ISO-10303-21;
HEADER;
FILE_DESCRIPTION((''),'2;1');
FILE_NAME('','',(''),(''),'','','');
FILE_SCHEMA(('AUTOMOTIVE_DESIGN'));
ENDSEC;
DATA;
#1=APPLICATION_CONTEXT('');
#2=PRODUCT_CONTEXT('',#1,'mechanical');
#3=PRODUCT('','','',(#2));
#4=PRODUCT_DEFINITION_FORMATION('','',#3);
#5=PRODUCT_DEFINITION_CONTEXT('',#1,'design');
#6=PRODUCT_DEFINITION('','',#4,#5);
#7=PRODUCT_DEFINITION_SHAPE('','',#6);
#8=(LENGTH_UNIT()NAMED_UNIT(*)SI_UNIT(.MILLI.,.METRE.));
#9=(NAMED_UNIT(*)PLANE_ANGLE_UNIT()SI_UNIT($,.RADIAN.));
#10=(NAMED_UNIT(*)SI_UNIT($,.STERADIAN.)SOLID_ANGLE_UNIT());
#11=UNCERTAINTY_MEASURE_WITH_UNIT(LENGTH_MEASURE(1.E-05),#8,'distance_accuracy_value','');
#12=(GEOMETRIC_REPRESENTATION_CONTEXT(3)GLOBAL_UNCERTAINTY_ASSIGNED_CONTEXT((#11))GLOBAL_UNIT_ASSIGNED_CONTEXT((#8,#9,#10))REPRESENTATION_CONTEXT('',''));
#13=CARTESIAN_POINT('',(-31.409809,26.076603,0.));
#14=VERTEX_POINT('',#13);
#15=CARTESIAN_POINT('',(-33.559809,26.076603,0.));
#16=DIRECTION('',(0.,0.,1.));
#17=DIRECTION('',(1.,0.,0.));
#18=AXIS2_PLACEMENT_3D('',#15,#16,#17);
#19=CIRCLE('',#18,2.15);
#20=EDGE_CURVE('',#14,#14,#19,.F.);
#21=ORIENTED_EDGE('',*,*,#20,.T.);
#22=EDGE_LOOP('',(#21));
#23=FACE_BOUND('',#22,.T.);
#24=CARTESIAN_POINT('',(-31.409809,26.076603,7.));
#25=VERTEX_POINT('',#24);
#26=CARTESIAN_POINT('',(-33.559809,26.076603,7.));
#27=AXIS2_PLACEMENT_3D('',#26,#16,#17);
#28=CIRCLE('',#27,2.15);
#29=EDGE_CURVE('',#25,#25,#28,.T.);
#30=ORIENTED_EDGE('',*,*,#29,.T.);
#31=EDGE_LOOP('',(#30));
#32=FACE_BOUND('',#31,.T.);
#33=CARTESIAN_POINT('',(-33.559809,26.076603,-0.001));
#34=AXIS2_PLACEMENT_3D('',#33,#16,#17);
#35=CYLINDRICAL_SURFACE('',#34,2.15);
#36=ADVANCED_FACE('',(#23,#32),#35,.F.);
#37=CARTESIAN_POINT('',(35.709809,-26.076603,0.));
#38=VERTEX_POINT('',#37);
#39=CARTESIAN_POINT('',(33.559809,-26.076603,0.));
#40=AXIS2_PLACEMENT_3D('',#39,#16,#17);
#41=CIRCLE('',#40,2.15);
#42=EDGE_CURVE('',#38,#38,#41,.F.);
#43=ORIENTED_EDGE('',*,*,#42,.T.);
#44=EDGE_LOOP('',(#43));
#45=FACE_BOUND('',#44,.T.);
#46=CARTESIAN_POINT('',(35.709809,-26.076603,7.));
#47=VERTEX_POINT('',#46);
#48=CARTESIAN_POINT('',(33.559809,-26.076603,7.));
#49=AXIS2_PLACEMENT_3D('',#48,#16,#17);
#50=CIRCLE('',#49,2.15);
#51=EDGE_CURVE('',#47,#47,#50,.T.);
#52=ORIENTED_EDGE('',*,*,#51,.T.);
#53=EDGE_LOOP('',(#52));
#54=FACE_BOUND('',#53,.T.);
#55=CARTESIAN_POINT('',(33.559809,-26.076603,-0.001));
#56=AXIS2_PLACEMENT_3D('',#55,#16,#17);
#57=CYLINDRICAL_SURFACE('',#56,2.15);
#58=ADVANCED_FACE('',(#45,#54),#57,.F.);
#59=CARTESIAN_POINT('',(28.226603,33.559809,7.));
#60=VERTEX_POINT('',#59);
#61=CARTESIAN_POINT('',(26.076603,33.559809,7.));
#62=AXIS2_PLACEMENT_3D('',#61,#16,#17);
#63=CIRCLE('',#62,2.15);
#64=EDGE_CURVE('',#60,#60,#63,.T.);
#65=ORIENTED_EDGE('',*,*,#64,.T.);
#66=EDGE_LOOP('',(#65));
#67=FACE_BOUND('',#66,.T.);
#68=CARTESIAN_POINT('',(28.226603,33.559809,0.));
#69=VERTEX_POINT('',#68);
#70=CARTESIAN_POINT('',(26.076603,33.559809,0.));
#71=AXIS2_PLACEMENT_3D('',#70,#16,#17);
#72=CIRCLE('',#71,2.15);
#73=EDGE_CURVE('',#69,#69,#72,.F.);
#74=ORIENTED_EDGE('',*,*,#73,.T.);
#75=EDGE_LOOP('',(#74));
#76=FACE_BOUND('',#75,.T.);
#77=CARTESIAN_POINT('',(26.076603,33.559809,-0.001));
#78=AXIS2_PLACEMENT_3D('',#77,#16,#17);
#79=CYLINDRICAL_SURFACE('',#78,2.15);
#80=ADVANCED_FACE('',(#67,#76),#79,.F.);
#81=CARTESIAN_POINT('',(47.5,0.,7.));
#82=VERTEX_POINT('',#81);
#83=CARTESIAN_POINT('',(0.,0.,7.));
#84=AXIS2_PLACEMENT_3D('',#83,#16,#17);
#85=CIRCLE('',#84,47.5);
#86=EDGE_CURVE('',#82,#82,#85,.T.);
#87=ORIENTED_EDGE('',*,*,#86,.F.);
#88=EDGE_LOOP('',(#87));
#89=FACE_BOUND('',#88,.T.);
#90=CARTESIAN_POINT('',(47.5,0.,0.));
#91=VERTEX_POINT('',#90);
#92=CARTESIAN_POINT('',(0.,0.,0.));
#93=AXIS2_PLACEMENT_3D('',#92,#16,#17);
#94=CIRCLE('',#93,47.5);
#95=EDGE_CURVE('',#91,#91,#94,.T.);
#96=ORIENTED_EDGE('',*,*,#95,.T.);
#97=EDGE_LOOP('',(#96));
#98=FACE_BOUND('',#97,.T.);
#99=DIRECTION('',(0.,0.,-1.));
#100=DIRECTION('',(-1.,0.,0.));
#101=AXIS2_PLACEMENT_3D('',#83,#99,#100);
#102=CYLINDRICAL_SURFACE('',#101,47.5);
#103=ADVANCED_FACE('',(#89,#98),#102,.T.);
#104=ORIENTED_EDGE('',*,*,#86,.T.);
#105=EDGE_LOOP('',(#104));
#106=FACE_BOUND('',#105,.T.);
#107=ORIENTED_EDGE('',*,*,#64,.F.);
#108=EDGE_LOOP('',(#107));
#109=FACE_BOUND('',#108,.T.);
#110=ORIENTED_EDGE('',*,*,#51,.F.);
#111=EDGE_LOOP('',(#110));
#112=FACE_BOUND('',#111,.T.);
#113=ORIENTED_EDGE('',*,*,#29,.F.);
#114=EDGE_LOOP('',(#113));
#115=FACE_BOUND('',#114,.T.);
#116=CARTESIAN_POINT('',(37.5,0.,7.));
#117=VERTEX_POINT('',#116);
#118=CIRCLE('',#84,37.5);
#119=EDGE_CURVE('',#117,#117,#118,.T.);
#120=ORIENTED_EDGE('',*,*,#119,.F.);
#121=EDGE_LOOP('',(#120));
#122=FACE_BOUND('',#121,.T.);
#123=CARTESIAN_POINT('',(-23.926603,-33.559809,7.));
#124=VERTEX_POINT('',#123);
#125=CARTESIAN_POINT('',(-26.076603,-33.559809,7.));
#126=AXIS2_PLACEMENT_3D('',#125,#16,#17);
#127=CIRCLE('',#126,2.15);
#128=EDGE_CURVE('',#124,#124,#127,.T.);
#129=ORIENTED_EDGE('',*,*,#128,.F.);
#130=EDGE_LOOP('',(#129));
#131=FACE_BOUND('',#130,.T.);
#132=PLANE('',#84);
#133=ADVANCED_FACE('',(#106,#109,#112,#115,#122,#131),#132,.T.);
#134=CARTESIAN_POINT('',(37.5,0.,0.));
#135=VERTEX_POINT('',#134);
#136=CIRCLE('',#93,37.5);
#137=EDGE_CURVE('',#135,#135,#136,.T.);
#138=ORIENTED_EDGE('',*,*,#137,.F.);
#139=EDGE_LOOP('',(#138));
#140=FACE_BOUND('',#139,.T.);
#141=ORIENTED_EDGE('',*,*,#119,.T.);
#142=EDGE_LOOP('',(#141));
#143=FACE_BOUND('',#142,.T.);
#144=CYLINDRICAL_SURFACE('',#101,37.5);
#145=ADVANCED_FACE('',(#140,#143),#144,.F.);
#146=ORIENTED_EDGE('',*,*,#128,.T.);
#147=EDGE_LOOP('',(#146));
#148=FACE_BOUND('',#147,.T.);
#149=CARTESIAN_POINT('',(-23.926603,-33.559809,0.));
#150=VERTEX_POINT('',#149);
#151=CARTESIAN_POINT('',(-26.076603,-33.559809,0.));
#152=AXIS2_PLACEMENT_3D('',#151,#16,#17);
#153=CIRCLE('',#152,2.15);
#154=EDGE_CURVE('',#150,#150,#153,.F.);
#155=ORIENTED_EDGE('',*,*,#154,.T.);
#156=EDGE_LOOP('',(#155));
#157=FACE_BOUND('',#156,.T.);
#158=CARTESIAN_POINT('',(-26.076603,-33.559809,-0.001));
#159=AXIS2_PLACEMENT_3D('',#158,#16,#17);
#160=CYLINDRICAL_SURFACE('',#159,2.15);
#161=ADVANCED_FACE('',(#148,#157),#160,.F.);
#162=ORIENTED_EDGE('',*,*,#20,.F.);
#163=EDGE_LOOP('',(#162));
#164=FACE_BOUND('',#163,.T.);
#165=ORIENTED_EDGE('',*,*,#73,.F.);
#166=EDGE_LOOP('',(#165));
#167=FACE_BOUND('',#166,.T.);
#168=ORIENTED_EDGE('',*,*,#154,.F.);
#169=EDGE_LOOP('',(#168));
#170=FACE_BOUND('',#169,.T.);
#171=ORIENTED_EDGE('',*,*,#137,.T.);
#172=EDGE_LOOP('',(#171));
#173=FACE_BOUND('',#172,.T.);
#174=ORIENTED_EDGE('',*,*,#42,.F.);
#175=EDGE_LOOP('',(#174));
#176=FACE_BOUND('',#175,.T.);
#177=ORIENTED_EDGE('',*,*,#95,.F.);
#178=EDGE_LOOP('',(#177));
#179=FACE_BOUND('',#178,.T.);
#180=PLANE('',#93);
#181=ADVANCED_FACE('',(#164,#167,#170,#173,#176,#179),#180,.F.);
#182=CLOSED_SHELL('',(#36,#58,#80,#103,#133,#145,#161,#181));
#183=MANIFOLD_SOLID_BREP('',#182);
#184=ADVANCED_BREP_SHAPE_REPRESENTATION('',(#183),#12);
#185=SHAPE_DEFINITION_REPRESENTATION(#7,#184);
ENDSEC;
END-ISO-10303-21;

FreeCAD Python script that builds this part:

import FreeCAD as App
import Part
import Sketcher

doc = App.newDocument("Part")
body = doc.addObject("PartDesign::Body", "Body")

sketch1 = doc.addObject("Sketcher::SketchObject", "Sketch")
body.addObject(sketch1)
sketch1.AttachmentSupport = (doc.XY_Plane, [""])
sketch1.MapMode = "FlatFace"
sketch1.addGeometry([
    Part.Circle(App.Vector(0, 0, 0), App.Vector(0, 0, 1), 48),
    Part.Circle(App.Vector(0, 0, 0), App.Vector(0, 0, 1), 38),
], False)
sketch1.addConstraint([
    Sketcher.Constraint("Coincident", 0, 3, -1, 1),
    Sketcher.Constraint("Coincident", 1, 3, -1, 1),
    Sketcher.Constraint("Diameter", 0, 95.0),
    Sketcher.Constraint("Diameter", 1, 75.0),
])
pad1 = doc.addObject("PartDesign::Pad", "Pad")
body.addObject(pad1)
pad1.Profile = sketch1
pad1.Length = 7

sketch2 = doc.addObject("Sketcher::SketchObject", "Sketch001")
body.addObject(sketch2)
sketch2.AttachmentSupport = (doc.XY_Plane, [""])
sketch2.MapMode = "FlatFace"
sketch2.AttachmentOffset = App.Placement(App.Vector(0, 0, 7), App.Rotation())
sketch2.addGeometry(Part.Circle(App.Vector(-33.6, 26.1, 0), App.Vector(0, 0, 1), 2.1), False)
sketch2.addConstraint([
    Sketcher.Constraint("Diameter", 0, 4.3),
    Sketcher.Constraint("DistanceX", 0, 3, -1, 1, 33.559809),
    Sketcher.Constraint("DistanceY", -1, 1, 0, 3, 26.076603),
])
pocket1 = doc.addObject("PartDesign::Pocket", "Pocket")
body.addObject(pocket1)
pocket1.Profile = sketch2
pocket1.Type = "UpToFirst"

sketch3 = doc.addObject("Sketcher::SketchObject", "Sketch002")
body.addObject(sketch3)
sketch3.AttachmentSupport = (doc.XY_Plane, [""])
sketch3.MapMode = "FlatFace"
sketch3.AttachmentOffset = App.Placement(App.Vector(0, 0, 7), App.Rotation())
sketch3.addGeometry(Part.Circle(App.Vector(26.1, 33.6, 0), App.Vector(0, 0, 1), 2.1), False)
sketch3.addConstraint([
    Sketcher.Constraint("Diameter", 0, 4.3),
    Sketcher.Constraint("DistanceY", -1, 1, 0, 3, 33.559809),
    Sketcher.Constraint("DistanceX", -1, 1, 0, 3, 26.076603),
])
pocket2 = doc.addObject("PartDesign::Pocket", "Pocket001")
body.addObject(pocket2)
pocket2.Profile = sketch3
pocket2.Type = "UpToFirst"

sketch4 = doc.addObject("Sketcher::SketchObject", "Sketch003")
body.addObject(sketch4)
sketch4.AttachmentSupport = (doc.XY_Plane, [""])
sketch4.MapMode = "FlatFace"
sketch4.AttachmentOffset = App.Placement(App.Vector(0, 0, 7), App.Rotation())
sketch4.addGeometry(Part.Circle(App.Vector(33.6, -26.1, 0), App.Vector(0, 0, 1), 2.1), False)
sketch4.addConstraint([
    Sketcher.Constraint("Diameter", 0, 4.3),
    Sketcher.Constraint("DistanceX", -1, 1, 0, 3, 33.559809),
    Sketcher.Constraint("DistanceY", 0, 3, -1, 1, 26.076603),
])
pocket3 = doc.addObject("PartDesign::Pocket", "Pocket002")
body.addObject(pocket3)
pocket3.Profile = sketch4
pocket3.Type = "UpToFirst"

sketch5 = doc.addObject("Sketcher::SketchObject", "Sketch004")
body.addObject(sketch5)
sketch5.AttachmentSupport = (doc.XY_Plane, [""])
sketch5.MapMode = "FlatFace"
sketch5.AttachmentOffset = App.Placement(App.Vector(0, 0, 7), App.Rotation())
sketch5.addGeometry(Part.Circle(App.Vector(-26.1, -33.6, 0), App.Vector(0, 0, 1), 2.1), False)
sketch5.addConstraint([
    Sketcher.Constraint("Diameter", 0, 4.3),
    Sketcher.Constraint("DistanceY", 0, 3, -1, 1, 33.559809),
    Sketcher.Constraint("DistanceX", 0, 3, -1, 1, 26.076603),
])
pocket4 = doc.addObject("PartDesign::Pocket", "Pocket003")
body.addObject(pocket4)
pocket4.Profile = sketch5
pocket4.Type = "UpToFirst"

doc.recompute()
